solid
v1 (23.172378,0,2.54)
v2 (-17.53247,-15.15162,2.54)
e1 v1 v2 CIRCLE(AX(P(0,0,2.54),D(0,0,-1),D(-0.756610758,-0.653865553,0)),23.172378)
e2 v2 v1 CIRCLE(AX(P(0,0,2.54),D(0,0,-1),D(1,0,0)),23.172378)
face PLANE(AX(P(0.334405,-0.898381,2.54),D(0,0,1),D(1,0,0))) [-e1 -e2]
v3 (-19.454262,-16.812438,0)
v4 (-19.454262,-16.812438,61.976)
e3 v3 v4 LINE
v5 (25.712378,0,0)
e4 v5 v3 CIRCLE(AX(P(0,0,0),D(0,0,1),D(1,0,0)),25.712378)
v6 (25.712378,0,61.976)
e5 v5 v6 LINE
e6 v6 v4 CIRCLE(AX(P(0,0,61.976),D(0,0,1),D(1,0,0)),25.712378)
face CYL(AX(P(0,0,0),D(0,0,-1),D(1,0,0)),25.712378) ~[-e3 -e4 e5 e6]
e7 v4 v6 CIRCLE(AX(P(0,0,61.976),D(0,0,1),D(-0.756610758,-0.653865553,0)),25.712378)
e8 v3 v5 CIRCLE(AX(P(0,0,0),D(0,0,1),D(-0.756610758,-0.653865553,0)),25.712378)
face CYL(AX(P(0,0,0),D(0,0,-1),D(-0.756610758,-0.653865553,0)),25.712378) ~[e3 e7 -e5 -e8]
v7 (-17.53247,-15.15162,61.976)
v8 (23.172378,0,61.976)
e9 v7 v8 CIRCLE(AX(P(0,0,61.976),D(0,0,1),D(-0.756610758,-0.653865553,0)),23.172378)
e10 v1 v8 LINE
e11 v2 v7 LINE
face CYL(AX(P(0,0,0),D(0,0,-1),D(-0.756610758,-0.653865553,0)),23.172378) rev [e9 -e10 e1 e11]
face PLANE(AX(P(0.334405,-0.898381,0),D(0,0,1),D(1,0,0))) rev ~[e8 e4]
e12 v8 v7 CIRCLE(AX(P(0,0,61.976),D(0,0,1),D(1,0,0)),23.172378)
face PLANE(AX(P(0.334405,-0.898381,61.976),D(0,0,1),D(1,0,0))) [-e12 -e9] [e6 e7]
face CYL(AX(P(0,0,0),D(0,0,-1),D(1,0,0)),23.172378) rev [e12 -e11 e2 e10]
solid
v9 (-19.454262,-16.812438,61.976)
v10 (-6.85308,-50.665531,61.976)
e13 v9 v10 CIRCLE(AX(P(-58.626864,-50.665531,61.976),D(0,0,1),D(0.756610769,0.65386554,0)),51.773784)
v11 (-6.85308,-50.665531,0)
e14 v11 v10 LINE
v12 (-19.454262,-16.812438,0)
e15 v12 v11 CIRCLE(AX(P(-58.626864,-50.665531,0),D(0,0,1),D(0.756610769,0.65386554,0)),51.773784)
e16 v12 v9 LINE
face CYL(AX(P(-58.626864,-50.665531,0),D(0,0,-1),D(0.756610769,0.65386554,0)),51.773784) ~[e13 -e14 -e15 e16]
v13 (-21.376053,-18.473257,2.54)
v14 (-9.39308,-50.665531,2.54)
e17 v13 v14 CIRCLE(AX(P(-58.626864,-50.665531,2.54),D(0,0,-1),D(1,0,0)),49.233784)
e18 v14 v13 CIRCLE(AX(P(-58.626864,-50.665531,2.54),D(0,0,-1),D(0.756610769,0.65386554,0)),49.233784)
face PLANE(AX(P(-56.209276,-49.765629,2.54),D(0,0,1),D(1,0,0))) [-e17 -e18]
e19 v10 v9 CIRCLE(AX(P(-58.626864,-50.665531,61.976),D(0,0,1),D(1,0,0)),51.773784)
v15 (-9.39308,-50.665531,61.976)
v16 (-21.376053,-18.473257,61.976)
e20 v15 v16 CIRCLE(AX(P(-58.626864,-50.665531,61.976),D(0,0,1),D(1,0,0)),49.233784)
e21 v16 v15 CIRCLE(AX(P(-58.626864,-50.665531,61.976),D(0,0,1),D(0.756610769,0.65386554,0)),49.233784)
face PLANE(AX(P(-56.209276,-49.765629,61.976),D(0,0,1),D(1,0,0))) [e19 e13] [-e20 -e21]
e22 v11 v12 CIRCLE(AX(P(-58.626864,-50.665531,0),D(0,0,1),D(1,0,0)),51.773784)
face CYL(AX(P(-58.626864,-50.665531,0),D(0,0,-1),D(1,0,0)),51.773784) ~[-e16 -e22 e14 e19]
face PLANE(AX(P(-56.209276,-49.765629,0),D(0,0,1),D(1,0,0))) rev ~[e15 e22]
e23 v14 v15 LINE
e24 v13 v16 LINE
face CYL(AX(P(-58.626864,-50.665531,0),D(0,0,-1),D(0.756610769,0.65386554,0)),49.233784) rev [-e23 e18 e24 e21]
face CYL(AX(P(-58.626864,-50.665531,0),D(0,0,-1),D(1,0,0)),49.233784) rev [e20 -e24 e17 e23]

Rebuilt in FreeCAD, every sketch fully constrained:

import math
import FreeCAD as App
import Part
import Sketcher

V = App.Vector
Q = App.Units.Quantity


def faces_at(feature, points):
    """Names of the faces that lie closest to the given points."""
    faces = feature.Shape.Faces
    near = lambda p: min(range(len(faces)), key=lambda i: faces[i].distToShape(Part.Vertex(*p))[0])
    return sorted({f"Face{near(p) + 1}" for p in points})

doc = App.newDocument("Part")
body = doc.addObject("PartDesign::Body", "Body")

# Sketch on XY plane
sketch1 = body.newObject("Sketcher::SketchObject", "Sketch")
sketch1.AttachmentSupport = (doc.getObject("XY_Plane"), [""])
sketch1.MapMode = "FlatFace"
sketch1.addGeometry([
    Part.ArcOfCircle(Part.Circle(V(-59, -51, 0), V(0, 0, 1), 52), math.radians(41), math.radians(360)),
    Part.ArcOfCircle(Part.Circle(V(-59, -51, 0), V(0, 0, 1), 52), math.radians(0), math.radians(41)),
], False)
sketch1.addConstraint([
    Sketcher.Constraint("Tangent", 0, 1, 1, 2),
    Sketcher.Constraint("Coincident", 1, 1, 0, 2),
    Sketcher.Constraint("Horizontal", 0, 3, 1, 1),
    Sketcher.Constraint("Radius", 0, 51.773784),
    Sketcher.Constraint("DistanceY", 0, 3, -1, 1, 50.665531),
    Sketcher.Constraint("DistanceX", 0, 1, -1, 1, 19.454262),
    Sketcher.Constraint("DistanceY", 0, 1, -1, 1, 16.812438),
])
pad1 = body.newObject("PartDesign::Pad", "Pad")
pad1.Profile = sketch1
pad1.Length = Q("2.44 in")
doc.recompute()

thickness = body.newObject("PartDesign::Thickness", "Thickness")
thickness.Base = (pad1, faces_at(pad1, [(-58.627, -50.666, 61.976)]))
thickness.Value = Q("0.1 in")
thickness.Reversed = True
thickness.Join = "Arc"
body2 = doc.addObject("PartDesign::Body", "Body001")

# Sketch on XY plane
sketch2 = body2.newObject("Sketcher::SketchObject", "Sketch001")
sketch2.AttachmentSupport = (doc.getObject("XY_Plane001"), [""])
sketch2.MapMode = "FlatFace"
sketch2.addGeometry([
    Part.ArcOfCircle(Part.Circle(V(0, 0, 0), V(0, 0, 1), 26), math.radians(0), math.radians(221)),
    Part.ArcOfCircle(Part.Circle(V(0, 0, 0), V(0, 0, 1), 26), math.radians(-139), math.radians(0)),
], False)
sketch2.addConstraint([
    Sketcher.Constraint("Tangent", 0, 1, 1, 2),
    Sketcher.Constraint("Coincident", 1, 1, 0, 2),
    Sketcher.Constraint("Coincident", 0, 3, -1, 1),
    Sketcher.Constraint("PointOnObject", 0, 1, -1),
    Sketcher.Constraint("Radius", 0, 25.712378),
    Sketcher.Constraint("DistanceX", 1, 1, -1, 1, 19.454262),
])
pad2 = body2.newObject("PartDesign::Pad", "Pad001")
pad2.Profile = sketch2
pad2.Length = Q("2.44 in")
doc.recompute()

thickness2 = body2.newObject("PartDesign::Thickness", "Thickness001")
thickness2.Base = (pad2, faces_at(pad2, [(0, 0, 61.976)]))
thickness2.Value = Q("0.1 in")
thickness2.Reversed = True
thickness2.Join = "Arc"

doc.recompute()
